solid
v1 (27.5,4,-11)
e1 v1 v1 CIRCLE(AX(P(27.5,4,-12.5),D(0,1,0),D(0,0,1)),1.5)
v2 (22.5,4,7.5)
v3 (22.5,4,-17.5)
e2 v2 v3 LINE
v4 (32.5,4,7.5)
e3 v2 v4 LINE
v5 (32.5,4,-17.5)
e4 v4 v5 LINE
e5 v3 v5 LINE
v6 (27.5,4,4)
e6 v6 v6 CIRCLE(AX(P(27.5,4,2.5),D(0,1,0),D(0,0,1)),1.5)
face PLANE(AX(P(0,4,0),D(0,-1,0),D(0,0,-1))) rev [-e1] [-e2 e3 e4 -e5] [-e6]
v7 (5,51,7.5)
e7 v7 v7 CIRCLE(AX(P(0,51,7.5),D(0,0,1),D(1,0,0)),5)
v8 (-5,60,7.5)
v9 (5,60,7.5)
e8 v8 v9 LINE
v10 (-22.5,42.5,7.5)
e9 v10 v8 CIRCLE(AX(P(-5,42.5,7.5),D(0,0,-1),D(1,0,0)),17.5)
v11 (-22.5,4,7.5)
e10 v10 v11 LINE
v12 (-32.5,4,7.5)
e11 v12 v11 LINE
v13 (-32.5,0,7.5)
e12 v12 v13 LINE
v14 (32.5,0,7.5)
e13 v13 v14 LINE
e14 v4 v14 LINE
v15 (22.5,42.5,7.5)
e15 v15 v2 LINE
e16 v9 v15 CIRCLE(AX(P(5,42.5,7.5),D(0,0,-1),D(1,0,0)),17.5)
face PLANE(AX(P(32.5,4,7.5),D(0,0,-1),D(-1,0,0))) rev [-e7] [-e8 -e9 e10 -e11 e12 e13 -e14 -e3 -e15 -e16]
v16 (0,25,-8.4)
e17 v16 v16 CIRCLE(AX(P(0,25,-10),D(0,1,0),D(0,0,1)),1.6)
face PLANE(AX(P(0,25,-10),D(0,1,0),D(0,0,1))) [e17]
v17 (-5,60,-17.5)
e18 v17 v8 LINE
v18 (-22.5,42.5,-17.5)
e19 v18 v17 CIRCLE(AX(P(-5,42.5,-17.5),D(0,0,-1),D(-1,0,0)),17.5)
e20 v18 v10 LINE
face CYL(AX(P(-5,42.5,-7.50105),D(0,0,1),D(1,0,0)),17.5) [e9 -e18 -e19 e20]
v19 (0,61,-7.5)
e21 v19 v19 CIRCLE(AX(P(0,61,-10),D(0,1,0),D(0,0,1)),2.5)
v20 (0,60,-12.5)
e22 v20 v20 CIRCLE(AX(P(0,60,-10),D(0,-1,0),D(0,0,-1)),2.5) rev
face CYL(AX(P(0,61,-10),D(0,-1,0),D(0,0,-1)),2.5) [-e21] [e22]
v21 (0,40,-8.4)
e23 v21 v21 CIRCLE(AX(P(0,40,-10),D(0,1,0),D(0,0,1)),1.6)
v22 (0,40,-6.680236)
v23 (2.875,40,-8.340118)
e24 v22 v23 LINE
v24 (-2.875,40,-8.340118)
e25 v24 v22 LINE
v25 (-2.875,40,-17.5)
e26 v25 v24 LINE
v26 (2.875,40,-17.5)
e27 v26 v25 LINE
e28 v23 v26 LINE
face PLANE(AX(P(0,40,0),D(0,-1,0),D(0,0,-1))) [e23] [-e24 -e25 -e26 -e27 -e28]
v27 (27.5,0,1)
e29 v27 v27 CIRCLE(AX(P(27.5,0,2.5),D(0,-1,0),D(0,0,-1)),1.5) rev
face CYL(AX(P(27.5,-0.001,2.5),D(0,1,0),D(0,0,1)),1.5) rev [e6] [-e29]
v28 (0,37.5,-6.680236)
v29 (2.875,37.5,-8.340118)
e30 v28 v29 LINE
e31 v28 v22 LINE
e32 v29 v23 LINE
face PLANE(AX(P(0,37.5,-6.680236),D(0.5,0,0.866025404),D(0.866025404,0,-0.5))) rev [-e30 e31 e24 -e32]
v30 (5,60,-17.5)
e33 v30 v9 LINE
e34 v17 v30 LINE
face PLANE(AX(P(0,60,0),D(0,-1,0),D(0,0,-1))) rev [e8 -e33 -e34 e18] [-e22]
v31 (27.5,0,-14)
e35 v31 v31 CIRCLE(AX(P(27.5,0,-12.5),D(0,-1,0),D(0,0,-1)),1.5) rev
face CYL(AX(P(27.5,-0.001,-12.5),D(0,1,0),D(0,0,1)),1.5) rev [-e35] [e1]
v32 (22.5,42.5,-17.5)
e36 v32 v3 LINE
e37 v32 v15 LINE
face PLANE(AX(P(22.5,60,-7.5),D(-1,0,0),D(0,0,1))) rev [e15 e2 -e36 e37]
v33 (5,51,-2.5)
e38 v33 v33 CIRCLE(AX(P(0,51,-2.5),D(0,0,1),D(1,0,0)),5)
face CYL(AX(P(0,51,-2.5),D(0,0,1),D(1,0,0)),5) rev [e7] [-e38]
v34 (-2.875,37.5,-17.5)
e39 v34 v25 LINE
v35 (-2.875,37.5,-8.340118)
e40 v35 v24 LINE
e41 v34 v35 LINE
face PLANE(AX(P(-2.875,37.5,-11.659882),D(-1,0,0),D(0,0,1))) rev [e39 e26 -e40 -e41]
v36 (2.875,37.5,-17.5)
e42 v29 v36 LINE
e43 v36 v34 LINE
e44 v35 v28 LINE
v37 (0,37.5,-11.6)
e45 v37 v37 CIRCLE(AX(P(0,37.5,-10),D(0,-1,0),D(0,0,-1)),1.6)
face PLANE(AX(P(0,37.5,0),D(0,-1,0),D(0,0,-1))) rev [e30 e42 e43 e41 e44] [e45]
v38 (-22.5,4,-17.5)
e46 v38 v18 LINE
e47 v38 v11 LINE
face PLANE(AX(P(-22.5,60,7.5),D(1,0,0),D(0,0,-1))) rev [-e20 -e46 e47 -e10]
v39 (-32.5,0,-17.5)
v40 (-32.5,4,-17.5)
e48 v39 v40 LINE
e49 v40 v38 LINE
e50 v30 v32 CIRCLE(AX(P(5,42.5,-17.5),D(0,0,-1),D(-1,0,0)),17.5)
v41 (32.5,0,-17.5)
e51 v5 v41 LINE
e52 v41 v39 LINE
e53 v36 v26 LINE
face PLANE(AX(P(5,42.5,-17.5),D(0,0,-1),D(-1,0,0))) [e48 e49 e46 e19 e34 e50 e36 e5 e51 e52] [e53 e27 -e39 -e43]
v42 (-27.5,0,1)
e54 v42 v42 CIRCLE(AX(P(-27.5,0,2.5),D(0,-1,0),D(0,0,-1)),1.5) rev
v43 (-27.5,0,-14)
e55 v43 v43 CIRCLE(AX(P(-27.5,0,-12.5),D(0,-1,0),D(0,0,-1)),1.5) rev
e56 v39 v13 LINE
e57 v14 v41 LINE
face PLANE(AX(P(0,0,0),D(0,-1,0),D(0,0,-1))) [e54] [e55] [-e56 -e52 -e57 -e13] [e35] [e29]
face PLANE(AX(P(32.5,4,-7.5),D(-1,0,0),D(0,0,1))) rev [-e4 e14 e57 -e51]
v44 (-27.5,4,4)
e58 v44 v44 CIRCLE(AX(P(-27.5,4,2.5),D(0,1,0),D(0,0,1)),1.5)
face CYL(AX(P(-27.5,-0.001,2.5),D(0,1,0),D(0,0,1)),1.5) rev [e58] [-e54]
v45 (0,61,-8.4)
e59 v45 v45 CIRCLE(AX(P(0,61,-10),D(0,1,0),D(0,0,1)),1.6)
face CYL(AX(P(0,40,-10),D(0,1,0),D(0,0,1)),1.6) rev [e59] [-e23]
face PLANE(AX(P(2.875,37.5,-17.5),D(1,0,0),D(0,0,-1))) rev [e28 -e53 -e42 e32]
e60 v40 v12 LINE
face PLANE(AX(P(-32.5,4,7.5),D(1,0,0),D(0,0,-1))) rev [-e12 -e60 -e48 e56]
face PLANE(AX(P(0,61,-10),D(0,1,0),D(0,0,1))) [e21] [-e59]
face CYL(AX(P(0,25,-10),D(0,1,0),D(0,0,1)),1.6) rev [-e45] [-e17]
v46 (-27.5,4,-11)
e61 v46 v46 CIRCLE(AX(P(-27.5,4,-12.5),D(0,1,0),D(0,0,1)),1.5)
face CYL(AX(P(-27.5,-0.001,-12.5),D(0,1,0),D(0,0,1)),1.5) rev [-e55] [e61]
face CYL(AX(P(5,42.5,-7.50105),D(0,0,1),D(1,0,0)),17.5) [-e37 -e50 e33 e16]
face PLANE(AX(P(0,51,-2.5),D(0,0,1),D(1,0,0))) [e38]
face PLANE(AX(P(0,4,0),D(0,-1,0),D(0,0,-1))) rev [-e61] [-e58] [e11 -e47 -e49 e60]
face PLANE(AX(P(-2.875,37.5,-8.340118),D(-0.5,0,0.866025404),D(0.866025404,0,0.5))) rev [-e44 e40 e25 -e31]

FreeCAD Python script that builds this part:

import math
import FreeCAD as App
import Part
import Sketcher
from FreeCAD import Vector
Q = App.Units.Quantity

doc = App.newDocument("Part")
body = doc.addObject("PartDesign::Body", "Body")

sketch1 = body.newObject("Sketcher::SketchObject", "Sketch")
sketch1.AttachmentSupport = (doc.getObject("XZ_Plane"), [""])
sketch1.MapMode = "FlatFace"
sketch1.addGeometry([
    Part.LineSegment(Vector(-32, -8, 0), Vector(-32, 8, 0)),
    Part.LineSegment(Vector(-32, 8, 0), Vector(32, 8, 0)),
    Part.LineSegment(Vector(32, 8, 0), Vector(32, -8, 0)),
    Part.LineSegment(Vector(32, -8, 0), Vector(-32, -8, 0)),
], False)
sketch1.addConstraint([
    Sketcher.Constraint("Coincident", 0, 2, 1, 1),
    Sketcher.Constraint("Coincident", 1, 2, 2, 1),
    Sketcher.Constraint("Coincident", 2, 2, 3, 1),
    Sketcher.Constraint("Coincident", 3, 2, 0, 1),
    Sketcher.Constraint("Vertical", 0),
    Sketcher.Constraint("Horizontal", 1),
    Sketcher.Constraint("Vertical", 2),
    Sketcher.Constraint("Horizontal", 3),
    Sketcher.Constraint("Symmetric", 0, 2, 2, 2, -1, 1),
    Sketcher.Constraint("DistanceX", 1, 1, 1, 2, Q("65 mm")),
    Sketcher.Constraint("DistanceY", 0, 1, 0, 2, Q("15 mm")),
])
pad1 = body.newObject("PartDesign::Pad", "Pad")
pad1.Profile = sketch1
pad1.Length = 4
pad1.Reversed = True

sketch2 = body.newObject("Sketcher::SketchObject", "Sketch001")
sketch2.AttachmentSupport = (doc.getObject("XZ_Plane"), [""])
sketch2.MapMode = "FlatFace"
sketch2.AttachmentOffset = App.Placement(Vector(0, 0, -4), App.Rotation())
sketch2.addGeometry([
    Part.LineSegment(Vector(-22, -8, 0), Vector(-22, 8, 0)),
    Part.LineSegment(Vector(-22, 8, 0), Vector(22, 8, 0)),
    Part.LineSegment(Vector(22, 8, 0), Vector(22, -8, 0)),
    Part.LineSegment(Vector(22, -8, 0), Vector(-22, -8, 0)),
], False)
sketch2.addConstraint([
    Sketcher.Constraint("Coincident", 0, 2, 1, 1),
    Sketcher.Constraint("Coincident", 1, 2, 2, 1),
    Sketcher.Constraint("Coincident", 2, 2, 3, 1),
    Sketcher.Constraint("Coincident", 3, 2, 0, 1),
    Sketcher.Constraint("Vertical", 0),
    Sketcher.Constraint("Horizontal", 1),
    Sketcher.Constraint("Vertical", 2),
    Sketcher.Constraint("Horizontal", 3),
    Sketcher.Constraint("Symmetric", 0, 2, 2, 2, -1, 1),
    Sketcher.Constraint("DistanceX", 1, 1, 1, 2, Q("45 mm")),
    Sketcher.Constraint("DistanceY", 0, 1, 0, 2, Q("15 mm")),
])
pad2 = body.newObject("PartDesign::Pad", "Pad001")
pad2.Profile = sketch2
pad2.Length = 56
pad2.Reversed = True

sketch3 = body.newObject("Sketcher::SketchObject", "Sketch002")
sketch3.AttachmentSupport = (doc.getObject("XY_Plane"), [""])
sketch3.MapMode = "FlatFace"
sketch3.AttachmentOffset = App.Placement(Vector(0, 0, 7.5), App.Rotation())
sketch3.addGeometry(Part.Circle(Vector(0, 51, 0), Vector(0, 0, 1), 5), False)
sketch3.addConstraint([
    Sketcher.Constraint("PointOnObject", 0, 3, -2),
    Sketcher.Constraint("Diameter", 0, Q("10 mm")),
    Sketcher.Constraint("DistanceY", -1, 1, 0, 3, Q("51 mm")),
])
pocket1 = body.newObject("PartDesign::Pocket", "Pocket")
pocket1.Profile = sketch3
pocket1.Length = 10

sketch4 = body.newObject("Sketcher::SketchObject", "Sketch003")
sketch4.AttachmentSupport = (doc.getObject("XY_Plane"), [""])
sketch4.MapMode = "FlatFace"
sketch4.AttachmentOffset = App.Placement(Vector(0, 0, 7.5), App.Rotation())
sketch4.addGeometry([
    Part.LineSegment(Vector(22, 60, 0), Vector(5, 60, 0)),
    Part.ArcOfCircle(Part.Circle(Vector(5, 43, 0), Vector(0, 0, 1), 17), math.radians(0), math.radians(90)),
    Part.LineSegment(Vector(22, 42, 0), Vector(22, 60, 0)),
], False)
sketch4.addConstraint([
    Sketcher.Constraint("Tangent", 0, 2, 1, 2),
    Sketcher.Constraint("Tangent", 1, 1, 2, 1),
    Sketcher.Constraint("Coincident", 2, 2, 0, 1),
    Sketcher.Constraint("Horizontal", 0),
    Sketcher.Constraint("Vertical", 2),
    Sketcher.Constraint("Radius", 1, Q("17.5 mm")),
    Sketcher.Constraint("DistanceX", -1, 1, 1, 3, Q("5 mm")),
    Sketcher.Constraint("DistanceY", -1, 1, 0, 2, Q("60 mm")),
])
pocket2 = body.newObject("PartDesign::Pocket", "Pocket001")
pocket2.Profile = sketch4
pocket2.Type = "UpToFirst"

sketch5 = body.newObject("Sketcher::SketchObject", "Sketch004")
sketch5.AttachmentSupport = (doc.getObject("XY_Plane"), [""])
sketch5.MapMode = "FlatFace"
sketch5.AttachmentOffset = App.Placement(Vector(0, 0, 7.5), App.Rotation())
sketch5.addGeometry([
    Part.LineSegment(Vector(-22, 60, 0), Vector(-22, 42, 0)),
    Part.ArcOfCircle(Part.Circle(Vector(-5, 43, 0), Vector(0, 0, 1), 17), math.radians(90), math.radians(180)),
    Part.LineSegment(Vector(-5, 60, 0), Vector(-22, 60, 0)),
], False)
sketch5.addConstraint([
    Sketcher.Constraint("Tangent", 0, 2, 1, 2),
    Sketcher.Constraint("Tangent", 1, 1, 2, 1),
    Sketcher.Constraint("Coincident", 2, 2, 0, 1),
    Sketcher.Constraint("Vertical", 0),
    Sketcher.Constraint("Horizontal", 2),
    Sketcher.Constraint("Radius", 1, Q("17.5 mm")),
    Sketcher.Constraint("DistanceX", 1, 3, -1, 1, Q("5 mm")),
    Sketcher.Constraint("DistanceY", -1, 1, 1, 1, Q("60 mm")),
])
pocket3 = body.newObject("PartDesign::Pocket", "Pocket002")
pocket3.Profile = sketch5
pocket3.Type = "UpToFirst"

sketch6 = body.newObject("Sketcher::SketchObject", "Sketch005")
sketch6.AttachmentSupport = (doc.getObject("XY_Plane"), [""])
sketch6.MapMode = "FlatFace"
sketch6.AttachmentOffset = App.Placement(Vector(0, 0, -7.5), App.Rotation())
sketch6.addGeometry([
    Part.LineSegment(Vector(22.5, 42.5, 0), Vector(22.5, 4, 0)),
    Part.LineSegment(Vector(22.5, 4, 0), Vector(32.5, 4, 0)),
    Part.LineSegment(Vector(32.5, 4, 0), Vector(32.5, 0, 0)),
    Part.LineSegment(Vector(32.5, 0, 0), Vector(-32.5, 0, 0)),
    Part.LineSegment(Vector(-32.5, 0, 0), Vector(-32.5, 4, 0)),
    Part.LineSegment(Vector(-32.5, 4, 0), Vector(-22.5, 4, 0)),
    Part.LineSegment(Vector(-22.5, 4, 0), Vector(-22.5, 42.5, 0)),
    Part.ArcOfCircle(Part.Circle(Vector(-5, 42.5, 0), Vector(0, 0, 1), 17.5), math.radians(90), math.radians(180)),
    Part.LineSegment(Vector(-5, 60, 0), Vector(5, 60, 0)),
    Part.ArcOfCircle(Part.Circle(Vector(5, 42.5, 0), Vector(0, 0, 1), 17.5), math.radians(0), math.radians(90)),
], False)
sketch6.addConstraint([
    Sketcher.Constraint("Coincident", 0, 2, 1, 1),
    Sketcher.Constraint("Coincident", 1, 2, 2, 1),
    Sketcher.Constraint("Coincident", 2, 2, 3, 1),
    Sketcher.Constraint("Coincident", 3, 2, 4, 1),
    Sketcher.Constraint("Coincident", 4, 2, 5, 1),
    Sketcher.Constraint("Coincident", 5, 2, 6, 1),
    Sketcher.Constraint("Tangent", 6, 2, 7, 2),
    Sketcher.Constraint("Tangent", 7, 1, 8, 1),
    Sketcher.Constraint("Tangent", 8, 2, 9, 2),
    Sketcher.Constraint("Tangent", 9, 1, 0, 1),
    Sketcher.Constraint("Vertical", 0),
    Sketcher.Constraint("Horizontal", 1),
    Sketcher.Constraint("Vertical", 2),
    Sketcher.Constraint("Horizontal", 3),
    Sketcher.Constraint("Vertical", 4),
    Sketcher.Constraint("Horizontal", 5),
    Sketcher.Constraint("Vertical", 6),
    Sketcher.Constraint("Horizontal", 8),
    Sketcher.Constraint("Equal", 7, 9),
    Sketcher.Constraint("Symmetric", 2, 2, 3, 2, -1, 1),
    Sketcher.Constraint("Symmetric", 0, 2, 5, 2, -2),
    Sketcher.Constraint("Equal", 5, 8),
    Sketcher.Constraint("Radius", 7, Q("17.5 mm")),
    Sketcher.Constraint("DistanceX", 1, 1, 1, 2, Q("10 mm")),
    Sketcher.Constraint("DistanceY", 2, 2, 2, 1, Q("4 mm")),
    Sketcher.Constraint("DistanceY", 0, 2, 0, 1, Q("38.5 mm")),
])
pad3 = body.newObject("PartDesign::Pad", "Pad002")
pad3.Profile = sketch6
pad3.Length = 10
pad3.Reversed = True

sketch7 = body.newObject("Sketcher::SketchObject", "Sketch006")
sketch7.AttachmentSupport = (doc.getObject("XZ_Plane"), [""])
sketch7.MapMode = "FlatFace"
sketch7.AttachmentOffset = App.Placement(Vector(0, 0, -4), App.Rotation())
sketch7.addGeometry(Part.Circle(Vector(-27.5, 2.5, 0), Vector(0, 0, 1), 1.5), False)
sketch7.addConstraint([
    Sketcher.Constraint("Diameter", 0, Q("3 mm")),
    Sketcher.Constraint("DistanceX", 0, 3, -1, 1, Q("27.5 mm")),
    Sketcher.Constraint("DistanceY", -1, 1, 0, 3, Q("2.5 mm")),
])
pocket4 = body.newObject("PartDesign::Pocket", "Pocket003")
pocket4.Profile = sketch7
pocket4.Type = "UpToFirst"
pocket4.Reversed = True

sketch8 = body.newObject("Sketcher::SketchObject", "Sketch007")
sketch8.AttachmentSupport = (doc.getObject("XZ_Plane"), [""])
sketch8.MapMode = "FlatFace"
sketch8.AttachmentOffset = App.Placement(Vector(0, 0, -4), App.Rotation())
sketch8.addGeometry(Part.Circle(Vector(-27.5, -12.5, 0), Vector(0, 0, 1), 1.5), False)
sketch8.addConstraint([
    Sketcher.Constraint("Diameter", 0, Q("3 mm")),
    Sketcher.Constraint("DistanceX", 0, 3, -1, 1, Q("27.5 mm")),
    Sketcher.Constraint("DistanceY", 0, 3, -1, 1, Q("12.5 mm")),
])
pocket5 = body.newObject("PartDesign::Pocket", "Pocket004")
pocket5.Profile = sketch8
pocket5.Type = "UpToFirst"
pocket5.Reversed = True

sketch9 = body.newObject("Sketcher::SketchObject", "Sketch008")
sketch9.AttachmentSupport = (doc.getObject("XZ_Plane"), [""])
sketch9.MapMode = "FlatFace"
sketch9.AttachmentOffset = App.Placement(Vector(0, 0, -4), App.Rotation())
sketch9.addGeometry(Part.Circle(Vector(27.5, -12.5, 0), Vector(0, 0, 1), 1.5), False)
sketch9.addConstraint([
    Sketcher.Constraint("Diameter", 0, Q("3 mm")),
    Sketcher.Constraint("DistanceX", -1, 1, 0, 3, Q("27.5 mm")),
    Sketcher.Constraint("DistanceY", 0, 3, -1, 1, Q("12.5 mm")),
])
pocket6 = body.newObject("PartDesign::Pocket", "Pocket005")
pocket6.Profile = sketch9
pocket6.Type = "UpToFirst"
pocket6.Reversed = True

sketch10 = body.newObject("Sketcher::SketchObject", "Sketch009")
sketch10.AttachmentSupport = (doc.getObject("XZ_Plane"), [""])
sketch10.MapMode = "FlatFace"
sketch10.AttachmentOffset = App.Placement(Vector(0, 0, -4), App.Rotation())
sketch10.addGeometry(Part.Circle(Vector(27.5, 2.5, 0), Vector(0, 0, 1), 1.5), False)
sketch10.addConstraint([
    Sketcher.Constraint("Diameter", 0, Q("3 mm")),
    Sketcher.Constraint("DistanceX", -1, 1, 0, 3, Q("27.5 mm")),
    Sketcher.Constraint("DistanceY", -1, 1, 0, 3, Q("2.5 mm")),
])
pocket7 = body.newObject("PartDesign::Pocket", "Pocket006")
pocket7.Profile = sketch10
pocket7.Type = "UpToFirst"
pocket7.Reversed = True

sketch11 = body.newObject("Sketcher::SketchObject", "Sketch010")
sketch11.AttachmentSupport = (doc.getObject("XZ_Plane"), [""])
sketch11.MapMode = "FlatFace"
sketch11.AttachmentOffset = App.Placement(Vector(0, 0, -60), App.Rotation())
sketch11.addGeometry([
    Part.LineSegment(Vector(-2.9, -17.5, 0), Vector(-2.9, -8.3, 0)),
    Part.LineSegment(Vector(-2.9, -8.3, 0), Vector(0, -6.7, 0)),
    Part.LineSegment(Vector(0, -6.7, 0), Vector(2.9, -8.3, 0)),
    Part.LineSegment(Vector(2.9, -8.3, 0), Vector(2.9, -17.5, 0)),
    Part.LineSegment(Vector(2.9, -17.5, 0), Vector(-2.9, -17.5, 0)),
], False)
sketch11.addConstraint([
    Sketcher.Constraint("Coincident", 0, 2, 1, 1),
    Sketcher.Constraint("Coincident", 1, 2, 2, 1),
    Sketcher.Constraint("Coincident", 2, 2, 3, 1),
    Sketcher.Constraint("Coincident", 3, 2, 4, 1),
    Sketcher.Constraint("Coincident", 4, 2, 0, 1),
    Sketcher.Constraint("Vertical", 0),
    Sketcher.Constraint("Vertical", 3),
    Sketcher.Constraint("Horizontal", 4),
    Sketcher.Constraint("Symmetric", 0, 2, 2, 2, -2),
    Sketcher.Constraint("PointOnObject", 1, 2, -2),
    Sketcher.Constraint("Angle", 1, Q("30 deg")),
    Sketcher.Constraint("DistanceX", 4, 2, 4, 1, Q("5.75 mm")),
    Sketcher.Constraint("DistanceY", 3, 2, -1, 1, Q("17.5 mm")),
    Sketcher.Constraint("DistanceY", 0, 1, 0, 2, Q("9.159882 mm")),
])
pocket8 = body.newObject("PartDesign::Pocket", "Pocket007")
pocket8.Profile = sketch11
pocket8.Length = 22.5
pocket8.Reversed = True

sketch12 = body.newObject("Sketcher::SketchObject", "Sketch011")
sketch12.AttachmentSupport = (doc.getObject("XZ_Plane"), [""])
sketch12.MapMode = "FlatFace"
sketch12.AttachmentOffset = App.Placement(Vector(0, 0, -60), App.Rotation())
sketch12.addGeometry([
    Part.LineSegment(Vector(0, -6.7, 0), Vector(2.9, -8.3, 0)),
    Part.LineSegment(Vector(2.9, -8.3, 0), Vector(2.9, -17.5, 0)),
    Part.LineSegment(Vector(2.9, -17.5, 0), Vector(-2.9, -17.5, 0)),
    Part.LineSegment(Vector(-2.9, -17.5, 0), Vector(-2.9, -8.3, 0)),
    Part.LineSegment(Vector(-2.9, -8.3, 0), Vector(0, -6.7, 0)),
    Part.Circle(Vector(0, -10, 0), Vector(0, 0, 1), 1.6),
], False)
sketch12.addConstraint([
    Sketcher.Constraint("Coincident", 0, 2, 1, 1),
    Sketcher.Constraint("Coincident", 1, 2, 2, 1),
    Sketcher.Constraint("Coincident", 2, 2, 3, 1),
    Sketcher.Constraint("Coincident", 3, 2, 4, 1),
    Sketcher.Constraint("Coincident", 4, 2, 0, 1),
    Sketcher.Constraint("Vertical", 1),
    Sketcher.Constraint("Horizontal", 2),
    Sketcher.Constraint("Vertical", 3),
    Sketcher.Constraint("Symmetric", 0, 2, 3, 2, -2),
    Sketcher.Constraint("PointOnObject", 5, 3, -2),
    Sketcher.Constraint("PointOnObject", 4, 2, -2),
    Sketcher.Constraint("Diameter", 5, Q("3.2 mm")),
    Sketcher.Constraint("Angle", 0, Q("-30 deg")),
    Sketcher.Constraint("DistanceY", 5, 3, -1, 1, Q("10 mm")),
    Sketcher.Constraint("DistanceX", 2, 2, 2, 1, Q("5.75 mm")),
    Sketcher.Constraint("DistanceY", 1, 2, -1, 1, Q("17.5 mm")),
    Sketcher.Constraint("DistanceY", 1, 2, 1, 1, Q("9.159882 mm")),
])
pad4 = body.newObject("PartDesign::Pad", "Pad003")
pad4.Profile = sketch12
pad4.Length = 20

sketch13 = body.newObject("Sketcher::SketchObject", "Sketch012")
sketch13.AttachmentSupport = (doc.getObject("XZ_Plane"), [""])
sketch13.MapMode = "FlatFace"
sketch13.AttachmentOffset = App.Placement(Vector(0, 0, -60), App.Rotation())
sketch13.addGeometry(Part.Circle(Vector(0, -10, 0), Vector(0, 0, 1), 1.6), False)
sketch13.addConstraint([
    Sketcher.Constraint("PointOnObject", 0, 3, -2),
    Sketcher.Constraint("Diameter", 0, Q("3.2 mm")),
    Sketcher.Constraint("DistanceY", 0, 3, -1, 1, Q("10 mm")),
])
pocket9 = body.newObject("PartDesign::Pocket", "Pocket008")
pocket9.Profile = sketch13
pocket9.Length = 35
pocket9.Reversed = True

sketch14 = body.newObject("Sketcher::SketchObject", "Sketch013")
sketch14.AttachmentSupport = (doc.getObject("XZ_Plane"), [""])
sketch14.MapMode = "FlatFace"
sketch14.AttachmentOffset = App.Placement(Vector(0, 0, -60), App.Rotation())
sketch14.addGeometry([
    Part.Circle(Vector(0, -10, 0), Vector(0, 0, 1), 2.5),
    Part.Circle(Vector(0, -10, 0), Vector(0, 0, 1), 1.6),
], False)
sketch14.addConstraint([
    Sketcher.Constraint("Coincident", 1, 3, 0, 3),
    Sketcher.Constraint("PointOnObject", 0, 3, -2),
    Sketcher.Constraint("Diameter", 0, Q("5 mm")),
    Sketcher.Constraint("Diameter", 1, Q("3.2 mm")),
    Sketcher.Constraint("DistanceY", 0, 3, -1, 1, Q("10 mm")),
])
pad5 = body.newObject("PartDesign::Pad", "Pad004")
pad5.Profile = sketch14
pad5.Length = 1
pad5.Reversed = True

doc.recompute()
